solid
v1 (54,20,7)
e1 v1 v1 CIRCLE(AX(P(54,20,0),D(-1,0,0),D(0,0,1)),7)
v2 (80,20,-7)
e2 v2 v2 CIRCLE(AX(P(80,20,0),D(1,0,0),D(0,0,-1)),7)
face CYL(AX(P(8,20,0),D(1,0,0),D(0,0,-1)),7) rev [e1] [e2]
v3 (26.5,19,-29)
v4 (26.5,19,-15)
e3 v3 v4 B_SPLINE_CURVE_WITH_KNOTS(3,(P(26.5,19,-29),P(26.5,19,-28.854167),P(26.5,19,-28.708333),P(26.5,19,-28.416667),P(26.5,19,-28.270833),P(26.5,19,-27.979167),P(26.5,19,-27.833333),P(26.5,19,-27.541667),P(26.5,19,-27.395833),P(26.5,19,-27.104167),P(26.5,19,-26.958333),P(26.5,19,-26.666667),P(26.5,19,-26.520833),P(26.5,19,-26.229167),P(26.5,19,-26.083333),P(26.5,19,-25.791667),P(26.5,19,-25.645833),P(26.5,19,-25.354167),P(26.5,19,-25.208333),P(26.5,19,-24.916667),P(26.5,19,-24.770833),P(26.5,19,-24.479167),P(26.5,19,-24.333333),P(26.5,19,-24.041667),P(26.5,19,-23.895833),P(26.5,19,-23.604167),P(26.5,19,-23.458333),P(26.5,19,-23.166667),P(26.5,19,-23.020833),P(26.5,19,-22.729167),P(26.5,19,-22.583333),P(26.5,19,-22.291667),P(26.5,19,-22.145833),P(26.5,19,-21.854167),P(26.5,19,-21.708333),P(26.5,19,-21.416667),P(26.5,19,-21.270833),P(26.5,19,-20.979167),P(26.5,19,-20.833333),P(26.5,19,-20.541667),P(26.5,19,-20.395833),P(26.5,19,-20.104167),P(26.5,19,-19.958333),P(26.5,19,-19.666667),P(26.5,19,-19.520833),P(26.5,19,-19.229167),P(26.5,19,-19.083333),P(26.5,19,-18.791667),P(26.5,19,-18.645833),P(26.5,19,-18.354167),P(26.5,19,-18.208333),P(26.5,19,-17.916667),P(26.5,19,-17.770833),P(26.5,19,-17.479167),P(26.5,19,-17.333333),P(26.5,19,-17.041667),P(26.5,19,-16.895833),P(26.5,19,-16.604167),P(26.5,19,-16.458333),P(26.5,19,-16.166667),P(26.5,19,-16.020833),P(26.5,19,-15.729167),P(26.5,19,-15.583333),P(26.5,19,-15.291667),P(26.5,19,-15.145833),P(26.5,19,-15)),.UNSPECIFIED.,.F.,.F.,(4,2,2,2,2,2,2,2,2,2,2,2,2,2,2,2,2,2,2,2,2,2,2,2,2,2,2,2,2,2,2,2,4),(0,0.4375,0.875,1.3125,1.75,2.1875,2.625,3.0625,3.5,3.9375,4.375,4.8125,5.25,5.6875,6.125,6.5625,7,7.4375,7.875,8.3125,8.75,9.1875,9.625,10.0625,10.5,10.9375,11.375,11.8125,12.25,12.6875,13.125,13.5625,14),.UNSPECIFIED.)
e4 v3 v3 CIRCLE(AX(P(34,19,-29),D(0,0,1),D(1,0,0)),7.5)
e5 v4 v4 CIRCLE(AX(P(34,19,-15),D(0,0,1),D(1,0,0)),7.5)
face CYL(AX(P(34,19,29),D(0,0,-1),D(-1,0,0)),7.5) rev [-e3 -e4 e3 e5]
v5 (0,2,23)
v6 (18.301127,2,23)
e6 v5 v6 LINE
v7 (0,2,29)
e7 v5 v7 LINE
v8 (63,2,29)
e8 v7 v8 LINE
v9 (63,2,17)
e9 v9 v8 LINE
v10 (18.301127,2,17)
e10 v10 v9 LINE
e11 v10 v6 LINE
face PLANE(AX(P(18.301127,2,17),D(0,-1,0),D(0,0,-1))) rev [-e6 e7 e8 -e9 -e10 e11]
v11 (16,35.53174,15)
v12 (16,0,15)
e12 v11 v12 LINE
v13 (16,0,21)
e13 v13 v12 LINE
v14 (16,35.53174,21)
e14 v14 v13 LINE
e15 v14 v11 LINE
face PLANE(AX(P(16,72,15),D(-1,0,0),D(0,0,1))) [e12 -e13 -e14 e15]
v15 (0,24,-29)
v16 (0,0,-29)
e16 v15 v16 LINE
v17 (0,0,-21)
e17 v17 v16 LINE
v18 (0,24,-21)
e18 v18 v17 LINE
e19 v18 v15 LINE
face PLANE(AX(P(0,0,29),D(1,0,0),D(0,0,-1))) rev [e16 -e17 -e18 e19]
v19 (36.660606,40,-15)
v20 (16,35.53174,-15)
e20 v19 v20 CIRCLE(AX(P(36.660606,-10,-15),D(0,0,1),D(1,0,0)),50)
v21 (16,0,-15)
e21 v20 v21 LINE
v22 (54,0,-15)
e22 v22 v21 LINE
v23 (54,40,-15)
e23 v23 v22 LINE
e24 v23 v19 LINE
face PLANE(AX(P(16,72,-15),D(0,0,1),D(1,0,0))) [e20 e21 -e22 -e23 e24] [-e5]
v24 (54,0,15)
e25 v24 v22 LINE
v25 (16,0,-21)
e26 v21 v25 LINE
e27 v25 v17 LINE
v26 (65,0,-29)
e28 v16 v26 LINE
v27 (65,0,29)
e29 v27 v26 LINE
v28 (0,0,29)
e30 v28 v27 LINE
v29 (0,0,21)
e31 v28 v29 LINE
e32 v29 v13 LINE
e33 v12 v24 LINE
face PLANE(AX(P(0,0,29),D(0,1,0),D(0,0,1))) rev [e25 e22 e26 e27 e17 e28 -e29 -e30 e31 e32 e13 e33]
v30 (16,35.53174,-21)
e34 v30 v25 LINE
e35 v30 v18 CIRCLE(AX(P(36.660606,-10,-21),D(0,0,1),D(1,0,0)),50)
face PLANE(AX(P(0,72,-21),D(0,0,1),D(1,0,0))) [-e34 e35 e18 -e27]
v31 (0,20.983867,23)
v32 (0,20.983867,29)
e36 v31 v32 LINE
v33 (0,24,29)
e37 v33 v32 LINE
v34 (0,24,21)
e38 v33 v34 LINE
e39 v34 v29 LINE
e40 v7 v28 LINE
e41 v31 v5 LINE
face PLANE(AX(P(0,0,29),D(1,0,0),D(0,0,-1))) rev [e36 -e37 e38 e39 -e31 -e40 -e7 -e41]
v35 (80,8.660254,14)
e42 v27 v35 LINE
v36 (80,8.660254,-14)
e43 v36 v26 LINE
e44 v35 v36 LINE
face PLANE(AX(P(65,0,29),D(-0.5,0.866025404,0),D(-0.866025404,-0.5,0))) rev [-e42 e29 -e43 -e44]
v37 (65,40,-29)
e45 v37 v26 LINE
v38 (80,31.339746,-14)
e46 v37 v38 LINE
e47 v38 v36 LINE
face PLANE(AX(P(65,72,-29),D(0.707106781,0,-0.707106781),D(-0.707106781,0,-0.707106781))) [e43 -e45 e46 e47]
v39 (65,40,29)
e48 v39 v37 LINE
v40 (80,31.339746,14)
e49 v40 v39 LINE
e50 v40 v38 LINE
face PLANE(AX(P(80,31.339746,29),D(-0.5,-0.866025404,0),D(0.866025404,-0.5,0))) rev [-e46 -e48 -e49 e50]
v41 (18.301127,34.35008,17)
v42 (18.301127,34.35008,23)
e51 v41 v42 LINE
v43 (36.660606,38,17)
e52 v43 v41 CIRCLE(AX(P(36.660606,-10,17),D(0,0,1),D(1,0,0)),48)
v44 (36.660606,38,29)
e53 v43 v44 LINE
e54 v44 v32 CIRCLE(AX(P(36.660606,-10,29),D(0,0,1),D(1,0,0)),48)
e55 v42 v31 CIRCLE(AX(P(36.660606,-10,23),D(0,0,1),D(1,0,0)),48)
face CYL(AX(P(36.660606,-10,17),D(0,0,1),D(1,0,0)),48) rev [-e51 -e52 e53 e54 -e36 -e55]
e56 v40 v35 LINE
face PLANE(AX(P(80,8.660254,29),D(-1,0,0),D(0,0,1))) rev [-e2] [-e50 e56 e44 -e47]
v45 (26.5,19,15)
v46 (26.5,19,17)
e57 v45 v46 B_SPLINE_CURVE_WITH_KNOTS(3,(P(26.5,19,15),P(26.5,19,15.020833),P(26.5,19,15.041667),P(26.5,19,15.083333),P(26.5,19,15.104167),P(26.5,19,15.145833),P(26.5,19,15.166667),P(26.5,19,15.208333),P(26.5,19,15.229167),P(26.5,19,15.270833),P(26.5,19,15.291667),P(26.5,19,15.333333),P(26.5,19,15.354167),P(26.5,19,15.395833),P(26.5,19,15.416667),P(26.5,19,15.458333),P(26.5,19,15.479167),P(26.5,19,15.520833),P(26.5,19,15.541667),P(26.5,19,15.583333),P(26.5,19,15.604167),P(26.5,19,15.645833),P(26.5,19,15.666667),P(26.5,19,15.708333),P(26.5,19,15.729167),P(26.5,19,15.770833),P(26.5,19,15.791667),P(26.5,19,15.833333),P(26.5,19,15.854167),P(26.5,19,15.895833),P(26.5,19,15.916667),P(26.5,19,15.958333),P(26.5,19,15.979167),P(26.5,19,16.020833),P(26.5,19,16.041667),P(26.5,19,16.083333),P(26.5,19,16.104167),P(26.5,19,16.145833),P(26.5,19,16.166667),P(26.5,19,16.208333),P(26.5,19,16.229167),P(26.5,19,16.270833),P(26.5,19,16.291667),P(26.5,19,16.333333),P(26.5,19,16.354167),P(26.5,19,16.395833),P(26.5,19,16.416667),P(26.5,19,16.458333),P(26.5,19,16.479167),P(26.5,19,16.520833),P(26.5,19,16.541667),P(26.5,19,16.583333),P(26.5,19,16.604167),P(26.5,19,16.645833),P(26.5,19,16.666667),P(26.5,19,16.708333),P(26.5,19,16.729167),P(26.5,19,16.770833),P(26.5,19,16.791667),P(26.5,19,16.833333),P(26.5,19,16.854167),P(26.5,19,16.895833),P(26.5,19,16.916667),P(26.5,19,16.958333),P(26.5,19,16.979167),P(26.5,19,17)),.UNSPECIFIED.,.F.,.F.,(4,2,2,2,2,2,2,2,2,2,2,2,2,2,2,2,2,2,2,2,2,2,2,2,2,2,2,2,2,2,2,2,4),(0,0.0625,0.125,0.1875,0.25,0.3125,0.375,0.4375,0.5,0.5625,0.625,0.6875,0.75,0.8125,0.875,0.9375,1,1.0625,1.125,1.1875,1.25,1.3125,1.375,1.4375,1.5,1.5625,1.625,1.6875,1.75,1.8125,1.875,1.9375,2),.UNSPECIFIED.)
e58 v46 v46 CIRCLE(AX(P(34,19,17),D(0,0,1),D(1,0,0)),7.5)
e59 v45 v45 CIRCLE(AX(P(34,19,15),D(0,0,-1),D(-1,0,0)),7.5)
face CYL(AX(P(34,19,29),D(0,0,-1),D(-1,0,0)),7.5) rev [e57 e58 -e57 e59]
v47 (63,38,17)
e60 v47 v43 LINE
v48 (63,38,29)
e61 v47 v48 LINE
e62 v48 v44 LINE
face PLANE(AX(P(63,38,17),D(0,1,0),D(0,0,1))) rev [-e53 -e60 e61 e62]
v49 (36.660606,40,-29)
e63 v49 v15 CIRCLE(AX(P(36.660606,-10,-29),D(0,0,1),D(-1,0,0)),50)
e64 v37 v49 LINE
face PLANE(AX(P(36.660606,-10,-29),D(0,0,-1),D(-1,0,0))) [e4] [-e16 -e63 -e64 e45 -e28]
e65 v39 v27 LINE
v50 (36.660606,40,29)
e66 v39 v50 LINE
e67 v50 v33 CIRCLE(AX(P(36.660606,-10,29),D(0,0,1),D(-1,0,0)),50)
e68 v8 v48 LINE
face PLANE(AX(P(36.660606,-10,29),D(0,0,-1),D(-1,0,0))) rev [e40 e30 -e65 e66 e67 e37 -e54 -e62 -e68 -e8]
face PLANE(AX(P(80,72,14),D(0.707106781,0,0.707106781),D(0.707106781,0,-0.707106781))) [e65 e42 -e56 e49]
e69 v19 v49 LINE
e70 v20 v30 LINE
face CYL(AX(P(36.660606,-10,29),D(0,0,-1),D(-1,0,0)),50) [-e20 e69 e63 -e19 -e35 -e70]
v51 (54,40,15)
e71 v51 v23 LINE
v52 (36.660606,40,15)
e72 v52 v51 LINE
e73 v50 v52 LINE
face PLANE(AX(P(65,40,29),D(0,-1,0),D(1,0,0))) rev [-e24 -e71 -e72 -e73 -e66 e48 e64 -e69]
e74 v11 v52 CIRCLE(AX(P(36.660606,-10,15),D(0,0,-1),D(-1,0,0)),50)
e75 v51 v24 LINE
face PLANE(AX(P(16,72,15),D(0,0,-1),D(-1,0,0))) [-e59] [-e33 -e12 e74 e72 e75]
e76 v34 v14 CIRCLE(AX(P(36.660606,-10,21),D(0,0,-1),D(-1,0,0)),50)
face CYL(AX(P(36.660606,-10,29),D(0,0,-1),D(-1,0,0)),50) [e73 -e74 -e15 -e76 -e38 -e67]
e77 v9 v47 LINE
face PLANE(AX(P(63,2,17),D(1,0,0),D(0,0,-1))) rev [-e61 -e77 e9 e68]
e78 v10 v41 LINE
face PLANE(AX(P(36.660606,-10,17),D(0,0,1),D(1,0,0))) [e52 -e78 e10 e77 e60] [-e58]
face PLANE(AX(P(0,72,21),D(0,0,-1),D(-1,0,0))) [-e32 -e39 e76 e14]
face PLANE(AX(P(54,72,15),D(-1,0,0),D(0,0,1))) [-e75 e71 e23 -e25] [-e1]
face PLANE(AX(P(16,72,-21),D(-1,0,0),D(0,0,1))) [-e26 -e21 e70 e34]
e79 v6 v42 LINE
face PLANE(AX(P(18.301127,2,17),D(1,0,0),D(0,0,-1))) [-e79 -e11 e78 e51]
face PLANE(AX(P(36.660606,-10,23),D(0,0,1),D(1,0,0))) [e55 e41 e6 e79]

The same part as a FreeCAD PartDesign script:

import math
import FreeCAD as App
import Part
import Sketcher
from FreeCAD import Vector
Q = App.Units.Quantity

doc = App.newDocument("Part")
params = doc.addObject("Spreadsheet::Sheet", "Params")
for row, (alias, value) in enumerate([
    ("sketch1_diameter", "15 mm"),
    ("sketch1_radius", "50 mm"),
    ("sketch1_width", "65 mm"),
    ("sketch1_height", "24 mm"),
    ("pad1_length", "58 mm"),
    ("sketch2_width", "16 mm"),
    ("sketch2_width2", "38 mm"),
    ("sketch2_height", "42 mm"),
    ("sketch2_height2", "6 mm"),
    ("pocket1_length", "72 mm"),
    ("sketch3_width", "15 mm"),
    ("pocket2_length", "72 mm"),
    ("sketch4_diameter", "14 mm"),
    ("pocket3_length", "72 mm"),
    ("sketch5_radius", "48 mm"),
    ("sketch5_height", "36 mm"),
    ("pocket4_length", "12 mm"),
    ("sketch6_radius", "48 mm"),
    ("pocket5_length", "6 mm"),
], start=1):
    params.set(f"A{row}", alias)
    params.set(f"B{row}", "=" + value)
    params.setAlias(f"B{row}", alias)

body = doc.addObject("PartDesign::Body", "Body")

# Sketch on XY plane
sketch1 = body.newObject("Sketcher::SketchObject", "Sketch")
sketch1.AttachmentSupport = (doc.getObject("XY_Plane"), [""])
sketch1.MapMode = "FlatFace"
sketch1.addGeometry([
    Part.LineSegment(Vector(0, 0, 0), Vector(65, 0, 0)),  # 0
    Part.LineSegment(Vector(65, 0, 0), Vector(80, 8.660254, 0)),  # 1
    Part.LineSegment(Vector(80, 8.660254, 0), Vector(80, 31.339746, 0)),  # 2
    Part.LineSegment(Vector(80, 31.339746, 0), Vector(65, 40, 0)),  # 3
    Part.LineSegment(Vector(65, 40, 0), Vector(36.660606, 40, 0)),  # 4
    Part.ArcOfCircle(Part.Circle(Vector(36.660606, -10, 0), Vector(0, 0, 1), 50), math.radians(90), math.radians(137.156357)),  # 5
    Part.LineSegment(Vector(0, 24, 0), Vector(0, 0, 0)),  # 6
    Part.Circle(Vector(34, 19, 0), Vector(0, 0, 1), 7.5),  # 7
], False)
sketch1.addConstraint([
    Sketcher.Constraint("Coincident", 0, 2, 1, 1),
    Sketcher.Constraint("Coincident", 1, 2, 2, 1),
    Sketcher.Constraint("Coincident", 2, 2, 3, 1),
    Sketcher.Constraint("Coincident", 3, 2, 4, 1),
    Sketcher.Constraint("Tangent", 4, 2, 5, 1),
    Sketcher.Constraint("Coincident", 5, 2, 6, 1),
    Sketcher.Constraint("Coincident", 6, 2, 0, 1),
    Sketcher.Constraint("Horizontal", 0),
    Sketcher.Constraint("Vertical", 2),
    Sketcher.Constraint("Horizontal", 4),
    Sketcher.Constraint("Vertical", 6),
    Sketcher.Constraint("Coincident", 6, 2, -1, 1),
    Sketcher.Constraint("Vertical", 0, 2, 3, 2),
    Sketcher.Constraint("Equal", 1, 3),
    Sketcher.Constraint("Diameter", 7, Q("15 mm")),
    Sketcher.Constraint("Radius", 5, Q("50 mm")),
    Sketcher.Constraint("DistanceX", 0, 1, 0, 2, Q("65 mm")),
    Sketcher.Constraint("DistanceY", 6, 2, 6, 1, Q("24 mm")),
    Sketcher.Constraint("Angle", 1, Q("30 deg")),
    Sketcher.Constraint("DistanceY", 5, 3, -1, 1, Q("10 mm")),
    Sketcher.Constraint("DistanceX", -1, 1, 7, 3, Q("34 mm")),
    Sketcher.Constraint("DistanceY", -1, 1, 7, 3, Q("19 mm")),
    Sketcher.Constraint("DistanceX", -1, 1, 1, 2, Q("80 mm")),
])
sketch1.setExpression("Constraints[14]", "Params.sketch1_diameter")
sketch1.setExpression("Constraints[15]", "Params.sketch1_radius")
sketch1.setExpression("Constraints[16]", "Params.sketch1_width")
sketch1.setExpression("Constraints[17]", "Params.sketch1_height")
pad1 = body.newObject("PartDesign::Pad", "Pad")
pad1.Profile = sketch1
pad1.setExpression("Length", "Params.pad1_length")
pad1.Midplane = True

# Sketch on XZ plane
sketch2 = body.newObject("Sketcher::SketchObject", "Sketch001")
sketch2.AttachmentSupport = (doc.getObject("XZ_Plane"), [""])
sketch2.MapMode = "FlatFace"
sketch2.addGeometry([
    Part.LineSegment(Vector(16, -21, 0), Vector(0, -21, 0)),  # 0
    Part.LineSegment(Vector(0, -21, 0), Vector(0, 21, 0)),  # 1
    Part.LineSegment(Vector(0, 21, 0), Vector(16, 21, 0)),  # 2
    Part.LineSegment(Vector(16, 21, 0), Vector(16, 15, 0)),  # 3
    Part.LineSegment(Vector(16, 15, 0), Vector(54, 15, 0)),  # 4
    Part.LineSegment(Vector(54, 15, 0), Vector(54, -15, 0)),  # 5
    Part.LineSegment(Vector(54, -15, 0), Vector(16, -15, 0)),  # 6
    Part.LineSegment(Vector(16, -15, 0), Vector(16, -21, 0)),  # 7
], False)
sketch2.addConstraint([
    Sketcher.Constraint("Coincident", 0, 2, 1, 1),
    Sketcher.Constraint("Coincident", 1, 2, 2, 1),
    Sketcher.Constraint("Coincident", 2, 2, 3, 1),
    Sketcher.Constraint("Coincident", 3, 2, 4, 1),
    Sketcher.Constraint("Coincident", 4, 2, 5, 1),
    Sketcher.Constraint("Coincident", 5, 2, 6, 1),
    Sketcher.Constraint("Coincident", 6, 2, 7, 1),
    Sketcher.Constraint("Coincident", 7, 2, 0, 1),
    Sketcher.Constraint("Horizontal", 0),
    Sketcher.Constraint("Vertical", 1),
    Sketcher.Constraint("Horizontal", 2),
    Sketcher.Constraint("Vertical", 3),
    Sketcher.Constraint("Horizontal", 4),
    Sketcher.Constraint("Vertical", 5),
    Sketcher.Constraint("Horizontal", 6),
    Sketcher.Constraint("Vertical", 7),
    Sketcher.Constraint("Symmetric", 0, 2, 1, 2, -1, 1),
    Sketcher.Constraint("Symmetric", 3, 2, 6, 2, -1),
    Sketcher.Constraint("DistanceX", 0, 2, 0, 1, Q("16 mm")),
    Sketcher.Constraint("DistanceX", 4, 1, 4, 2, Q("38 mm")),
    Sketcher.Constraint("DistanceY", 1, 1, 1, 2, Q("42 mm")),
    Sketcher.Constraint("DistanceY", 3, 2, 3, 1, Q("6 mm")),
])
sketch2.setExpression("Constraints[18]", "Params.sketch2_width")
sketch2.setExpression("Constraints[19]", "Params.sketch2_width2")
sketch2.setExpression("Constraints[20]", "Params.sketch2_height")
sketch2.setExpression("Constraints[21]", "Params.sketch2_height2")
pocket1 = body.newObject("PartDesign::Pocket", "Pocket")
pocket1.Profile = sketch2
pocket1.setExpression("Length", "Params.pocket1_length")

# Sketch on XZ plane
sketch3 = body.newObject("Sketcher::SketchObject", "Sketch002")
sketch3.AttachmentSupport = (doc.getObject("XZ_Plane"), [""])
sketch3.MapMode = "FlatFace"
sketch3.addGeometry([
    Part.LineSegment(Vector(80, -29, 0), Vector(65, -29, 0)),  # 0
    Part.LineSegment(Vector(65, -29, 0), Vector(80, -14, 0)),  # 1
    Part.LineSegment(Vector(80, -14, 0), Vector(80, -29, 0)),  # 2
    Part.LineSegment(Vector(65, 29, 0), Vector(80, 29, 0)),  # 3
    Part.LineSegment(Vector(80, 29, 0), Vector(80, 14, 0)),  # 4
    Part.LineSegment(Vector(80, 14, 0), Vector(65, 29, 0)),  # 5
], False)
sketch3.addConstraint([
    Sketcher.Constraint("Coincident", 0, 2, 1, 1),
    Sketcher.Constraint("Coincident", 1, 2, 2, 1),
    Sketcher.Constraint("Coincident", 2, 2, 0, 1),
    Sketcher.Constraint("Coincident", 3, 2, 4, 1),
    Sketcher.Constraint("Coincident", 4, 2, 5, 1),
    Sketcher.Constraint("Coincident", 5, 2, 3, 1),
    Sketcher.Constraint("Horizontal", 0),
    Sketcher.Constraint("Vertical", 2),
    Sketcher.Constraint("Horizontal", 3),
    Sketcher.Constraint("Vertical", 4),
    Sketcher.Constraint("Symmetric", 2, 2, 3, 2, -1),
    Sketcher.Constraint("Perpendicular", 1, 5),
    Sketcher.Constraint("Vertical", 0, 2, 5, 2),
    Sketcher.Constraint("Equal", 3, 2),
    Sketcher.Constraint("DistanceX", 0, 2, 0, 1, Q("15 mm")),
    Sketcher.Constraint("DistanceX", -1, 1, 0, 2, Q("65 mm")),
    Sketcher.Constraint("DistanceY", 0, 2, -1, 1, Q("29 mm")),
])
sketch3.setExpression("Constraints[14]", "Params.sketch3_width")
pocket2 = body.newObject("PartDesign::Pocket", "Pocket001")
pocket2.Profile = sketch3
pocket2.setExpression("Length", "Params.pocket2_length")

# Sketch on YZ plane
sketch4 = body.newObject("Sketcher::SketchObject", "Sketch003")
sketch4.AttachmentSupport = (doc.getObject("YZ_Plane"), [""])
sketch4.MapMode = "FlatFace"
sketch4.AttachmentOffset = App.Placement(Vector(0, 0, 80), App.Rotation())
sketch4.addGeometry(Part.Circle(Vector(20, 0, 0), Vector(0, 0, 1), 7), False)
sketch4.addConstraint([
    Sketcher.Constraint("PointOnObject", 0, 3, -1),
    Sketcher.Constraint("Diameter", 0, Q("14 mm")),
    Sketcher.Constraint("DistanceX", -1, 1, 0, 3, Q("20 mm")),
])
sketch4.setExpression("Constraints[1]", "Params.sketch4_diameter")
pocket3 = body.newObject("PartDesign::Pocket", "Pocket002")
pocket3.Profile = sketch4
pocket3.setExpression("Length", "Params.pocket3_length")

# Sketch on XY plane
sketch5 = body.newObject("Sketcher::SketchObject", "Sketch004")
sketch5.AttachmentSupport = (doc.getObject("XY_Plane"), [""])
sketch5.MapMode = "FlatFace"
sketch5.AttachmentOffset = App.Placement(Vector(0, 0, 29), App.Rotation())
sketch5.addGeometry([
    Part.LineSegment(Vector(63, 2, 0), Vector(63, 38, 0)),  # 0
    Part.LineSegment(Vector(63, 38, 0), Vector(36.660606, 38, 0)),  # 1
    Part.ArcOfCircle(Part.Circle(Vector(36.660606, -10, 0), Vector(0, 0, 1), 48), math.radians(90), math.radians(112.487951)),  # 2
    Part.LineSegment(Vector(18.301127, 34.35008, 0), Vector(18.301127, 2, 0)),  # 3
    Part.LineSegment(Vector(18.301127, 2, 0), Vector(63, 2, 0)),  # 4
], False)
sketch5.addConstraint([
    Sketcher.Constraint("Coincident", 0, 2, 1, 1),
    Sketcher.Constraint("Tangent", 1, 2, 2, 1),
    Sketcher.Constraint("Coincident", 2, 2, 3, 1),
    Sketcher.Constraint("Coincident", 3, 2, 4, 1),
    Sketcher.Constraint("Coincident", 4, 2, 0, 1),
    Sketcher.Constraint("Vertical", 0),
    Sketcher.Constraint("Horizontal", 1),
    Sketcher.Constraint("Vertical", 3),
    Sketcher.Constraint("Horizontal", 4),
    Sketcher.Constraint("Radius", 2, Q("48 mm")),
    Sketcher.Constraint("DistanceY", 0, 1, 0, 2, Q("36 mm")),
    Sketcher.Constraint("DistanceY", 2, 3, -1, 1, Q("10 mm")),
    Sketcher.Constraint("DistanceX", -1, 1, 0, 2, Q("63 mm")),
    Sketcher.Constraint("DistanceY", 3, 2, 3, 1, Q("32.35008 mm")),
    Sketcher.Constraint("DistanceX", 1, 2, 1, 1, Q("26.339394 mm")),
])
sketch5.setExpression("Constraints[9]", "Params.sketch5_radius")
sketch5.setExpression("Constraints[10]", "Params.sketch5_height")
pocket4 = body.newObject("PartDesign::Pocket", "Pocket003")
pocket4.Profile = sketch5
pocket4.setExpression("Length", "Params.pocket4_length")

# Sketch on XY plane
sketch6 = body.newObject("Sketcher::SketchObject", "Sketch005")
sketch6.AttachmentSupport = (doc.getObject("XY_Plane"), [""])
sketch6.MapMode = "FlatFace"
sketch6.AttachmentOffset = App.Placement(Vector(0, 0, 29), App.Rotation())
sketch6.addGeometry([
    Part.LineSegment(Vector(0, 2, 0), Vector(18.301127, 2, 0)),
    Part.LineSegment(Vector(18.301127, 2, 0), Vector(18.301127, 34.35008, 0)),
    Part.ArcOfCircle(Part.Circle(Vector(36.660606, -10, 0), Vector(0, 0, 1), 48), math.radians(112.487951), math.radians(139.797034)),
    Part.LineSegment(Vector(0, 20.983867, 0), Vector(0, 2, 0)),
], False)
sketch6.addConstraint([
    Sketcher.Constraint("Coincident", 0, 2, 1, 1),
    Sketcher.Constraint("Coincident", 1, 2, 2, 1),
    Sketcher.Constraint("Coincident", 2, 2, 3, 1),
    Sketcher.Constraint("Coincident", 3, 2, 0, 1),
    Sketcher.Constraint("Horizontal", 0),
    Sketcher.Constraint("Vertical", 1),
    Sketcher.Constraint("Vertical", 3),
    Sketcher.Constraint("PointOnObject", 2, 2, -2),
    Sketcher.Constraint("Radius", 2, Q("48 mm")),
    Sketcher.Constraint("DistanceY", 2, 3, -1, 1, Q("10 mm")),
    Sketcher.Constraint("DistanceY", -1, 1, 0, 2, Q("2 mm")),
    Sketcher.Constraint("DistanceY", 1, 1, 1, 2, Q("32.35008 mm")),
    Sketcher.Constraint("DistanceX", 0, 1, 0, 2, Q("18.301127 mm")),
])
sketch6.setExpression("Constraints[8]", "Params.sketch6_radius")
pocket5 = body.newObject("PartDesign::Pocket", "Pocket004")
pocket5.Profile = sketch6
pocket5.setExpression("Length", "Params.pocket5_length")

doc.recompute()
